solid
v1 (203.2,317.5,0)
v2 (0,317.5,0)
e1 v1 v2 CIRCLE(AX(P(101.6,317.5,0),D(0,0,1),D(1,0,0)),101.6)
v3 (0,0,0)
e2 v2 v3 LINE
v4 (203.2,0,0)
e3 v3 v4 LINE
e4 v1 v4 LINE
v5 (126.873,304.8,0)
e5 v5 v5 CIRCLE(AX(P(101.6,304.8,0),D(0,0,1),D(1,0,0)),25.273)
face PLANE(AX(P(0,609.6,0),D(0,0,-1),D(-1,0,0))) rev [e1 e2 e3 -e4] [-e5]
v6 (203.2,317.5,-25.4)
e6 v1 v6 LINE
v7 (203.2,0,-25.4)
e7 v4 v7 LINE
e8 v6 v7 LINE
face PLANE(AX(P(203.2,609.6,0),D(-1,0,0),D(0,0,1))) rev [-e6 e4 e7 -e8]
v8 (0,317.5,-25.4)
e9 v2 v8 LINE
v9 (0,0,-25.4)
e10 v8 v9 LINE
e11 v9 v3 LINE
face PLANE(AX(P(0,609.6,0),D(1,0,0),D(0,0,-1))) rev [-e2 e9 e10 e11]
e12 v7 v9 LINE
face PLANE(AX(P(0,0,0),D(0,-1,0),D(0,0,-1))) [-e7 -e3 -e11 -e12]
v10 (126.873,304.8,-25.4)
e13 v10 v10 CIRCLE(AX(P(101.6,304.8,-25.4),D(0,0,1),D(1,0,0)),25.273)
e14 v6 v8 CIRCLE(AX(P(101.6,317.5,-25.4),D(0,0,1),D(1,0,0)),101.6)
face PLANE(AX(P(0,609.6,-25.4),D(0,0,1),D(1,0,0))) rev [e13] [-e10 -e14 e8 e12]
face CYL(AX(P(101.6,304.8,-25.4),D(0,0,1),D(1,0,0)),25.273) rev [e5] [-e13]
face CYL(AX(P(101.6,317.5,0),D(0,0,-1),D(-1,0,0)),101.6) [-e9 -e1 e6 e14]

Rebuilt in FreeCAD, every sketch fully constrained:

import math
import FreeCAD as App
import Part
import Sketcher
Q = App.Units.Quantity


def add_polygon(sketch, points):
    """Adds a closed chain of lines whose ends are joined by coincident constraints."""
    first, n = sketch.GeometryCount, len(points)
    for a, b in zip(points, points[1:] + points[:1]):
        sketch.addGeometry(Part.LineSegment(App.Vector(*a, 0), App.Vector(*b, 0)), False)
    for i in range(n):
        sketch.addConstraint(Sketcher.Constraint("Coincident", first + i, 2, first + (i + 1) % n, 1))

doc = App.newDocument("Part")
params = doc.addObject("Spreadsheet::Sheet", "Params")
for row, (alias, value) in enumerate([
    ("sketch1_width", "8 in"),
    ("sketch1_height", "1 in"),
    ("pad1_length", "24 in"),
    ("sketch2_diameter", "1.99 in"),
    ("sketch3_radius", "4 in"),
    ("sketch3_height", "11.5 in"),
], start=1):
    params.set(f"A{row}", alias)
    params.set(f"B{row}", "=" + value)
    params.setAlias(f"B{row}", alias)

body = doc.addObject("PartDesign::Body", "Body")

# Sketch on XZ plane
sketch1 = body.newObject("Sketcher::SketchObject", "Sketch")
sketch1.AttachmentSupport = (doc.getObject("XZ_Plane"), [""])
sketch1.MapMode = "FlatFace"
add_polygon(sketch1, [(0, -25.4), (0, 0), (203.2, 0), (203.2, -25.4)])  # lines 0-3
sketch1.addConstraint(Sketcher.Constraint("Vertical", 0))
sketch1.addConstraint(Sketcher.Constraint("Horizontal", 1))
sketch1.addConstraint(Sketcher.Constraint("Vertical", 2))
sketch1.addConstraint(Sketcher.Constraint("Horizontal", 3))
sketch1.addConstraint(Sketcher.Constraint("Coincident", 0, 2, -1, 1))
sketch1.addConstraint(Sketcher.Constraint("DistanceX", 1, 1, 1, 2, Q("8 in")))
sketch1.addConstraint(Sketcher.Constraint("DistanceY", 0, 1, 0, 2, Q("1 in")))
sketch1.setExpression("Constraints[9]", "Params.sketch1_width")
sketch1.setExpression("Constraints[10]", "Params.sketch1_height")
pad1 = body.newObject("PartDesign::Pad", "Pad")
pad1.Profile = sketch1
pad1.setExpression("Length", "Params.pad1_length")
pad1.Reversed = True

# Sketch on XY plane
sketch2 = body.newObject("Sketcher::SketchObject", "Sketch001")
sketch2.AttachmentSupport = (doc.getObject("XY_Plane"), [""])
sketch2.MapMode = "FlatFace"
sketch2.addGeometry(Part.Circle(App.Vector(101.6, 304.8, 0), App.Vector(0, 0, 1), 25.273), False)
sketch2.addConstraint(Sketcher.Constraint("Diameter", 0, Q("1.99 in")))
sketch2.addConstraint(Sketcher.Constraint("DistanceX", -1, 1, 0, 3, Q("4 in")))
sketch2.addConstraint(Sketcher.Constraint("DistanceY", -1, 1, 0, 3, Q("12 in")))
sketch2.setExpression("Constraints[0]", "Params.sketch2_diameter")
pocket1 = body.newObject("PartDesign::Pocket", "Pocket")
pocket1.Profile = sketch2
pocket1.Type = "ThroughAll"

# Sketch on XY plane
sketch3 = body.newObject("Sketcher::SketchObject", "Sketch002")
sketch3.AttachmentSupport = (doc.getObject("XY_Plane"), [""])
sketch3.MapMode = "FlatFace"
sketch3.AttachmentOffset = App.Placement(App.Vector(0, 0, -1 * 25.4), App.Rotation())
sketch3.addGeometry(Part.LineSegment(App.Vector(203.2, 609.6, 0), App.Vector(203.2, 317.5, 0)), False)
sketch3.addGeometry(Part.ArcOfCircle(Part.Circle(App.Vector(101.6, 317.5, 0), App.Vector(0, 0, 1), 101.6), math.radians(0), math.radians(180)), False)
sketch3.addGeometry(Part.LineSegment(App.Vector(0, 317.5, 0), App.Vector(0, 609.6, 0)), False)
sketch3.addGeometry(Part.LineSegment(App.Vector(0, 609.6, 0), App.Vector(203.2, 609.6, 0)), False)
sketch3.addConstraint(Sketcher.Constraint("Tangent", 0, 2, 1, 1))
sketch3.addConstraint(Sketcher.Constraint("Tangent", 1, 2, 2, 1))
sketch3.addConstraint(Sketcher.Constraint("Coincident", 2, 2, 3, 1))
sketch3.addConstraint(Sketcher.Constraint("Coincident", 3, 2, 0, 1))
sketch3.addConstraint(Sketcher.Constraint("Vertical", 0))
sketch3.addConstraint(Sketcher.Constraint("Vertical", 2))
sketch3.addConstraint(Sketcher.Constraint("Horizontal", 3))
sketch3.addConstraint(Sketcher.Constraint("PointOnObject", 1, 2, -2))
sketch3.addConstraint(Sketcher.Constraint("Radius", 1, Q("4 in")))
sketch3.addConstraint(Sketcher.Constraint("DistanceY", 0, 2, 0, 1, Q("11.5 in")))
sketch3.addConstraint(Sketcher.Constraint("DistanceY", -1, 1, 2, 2, Q("24 in")))
sketch3.setExpression("Constraints[8]", "Params.sketch3_radius")
sketch3.setExpression("Constraints[9]", "Params.sketch3_height")
pocket2 = body.newObject("PartDesign::Pocket", "Pocket001")
pocket2.Profile = sketch3
pocket2.Type = "ThroughAll"
pocket2.Reversed = True

doc.recompute()
